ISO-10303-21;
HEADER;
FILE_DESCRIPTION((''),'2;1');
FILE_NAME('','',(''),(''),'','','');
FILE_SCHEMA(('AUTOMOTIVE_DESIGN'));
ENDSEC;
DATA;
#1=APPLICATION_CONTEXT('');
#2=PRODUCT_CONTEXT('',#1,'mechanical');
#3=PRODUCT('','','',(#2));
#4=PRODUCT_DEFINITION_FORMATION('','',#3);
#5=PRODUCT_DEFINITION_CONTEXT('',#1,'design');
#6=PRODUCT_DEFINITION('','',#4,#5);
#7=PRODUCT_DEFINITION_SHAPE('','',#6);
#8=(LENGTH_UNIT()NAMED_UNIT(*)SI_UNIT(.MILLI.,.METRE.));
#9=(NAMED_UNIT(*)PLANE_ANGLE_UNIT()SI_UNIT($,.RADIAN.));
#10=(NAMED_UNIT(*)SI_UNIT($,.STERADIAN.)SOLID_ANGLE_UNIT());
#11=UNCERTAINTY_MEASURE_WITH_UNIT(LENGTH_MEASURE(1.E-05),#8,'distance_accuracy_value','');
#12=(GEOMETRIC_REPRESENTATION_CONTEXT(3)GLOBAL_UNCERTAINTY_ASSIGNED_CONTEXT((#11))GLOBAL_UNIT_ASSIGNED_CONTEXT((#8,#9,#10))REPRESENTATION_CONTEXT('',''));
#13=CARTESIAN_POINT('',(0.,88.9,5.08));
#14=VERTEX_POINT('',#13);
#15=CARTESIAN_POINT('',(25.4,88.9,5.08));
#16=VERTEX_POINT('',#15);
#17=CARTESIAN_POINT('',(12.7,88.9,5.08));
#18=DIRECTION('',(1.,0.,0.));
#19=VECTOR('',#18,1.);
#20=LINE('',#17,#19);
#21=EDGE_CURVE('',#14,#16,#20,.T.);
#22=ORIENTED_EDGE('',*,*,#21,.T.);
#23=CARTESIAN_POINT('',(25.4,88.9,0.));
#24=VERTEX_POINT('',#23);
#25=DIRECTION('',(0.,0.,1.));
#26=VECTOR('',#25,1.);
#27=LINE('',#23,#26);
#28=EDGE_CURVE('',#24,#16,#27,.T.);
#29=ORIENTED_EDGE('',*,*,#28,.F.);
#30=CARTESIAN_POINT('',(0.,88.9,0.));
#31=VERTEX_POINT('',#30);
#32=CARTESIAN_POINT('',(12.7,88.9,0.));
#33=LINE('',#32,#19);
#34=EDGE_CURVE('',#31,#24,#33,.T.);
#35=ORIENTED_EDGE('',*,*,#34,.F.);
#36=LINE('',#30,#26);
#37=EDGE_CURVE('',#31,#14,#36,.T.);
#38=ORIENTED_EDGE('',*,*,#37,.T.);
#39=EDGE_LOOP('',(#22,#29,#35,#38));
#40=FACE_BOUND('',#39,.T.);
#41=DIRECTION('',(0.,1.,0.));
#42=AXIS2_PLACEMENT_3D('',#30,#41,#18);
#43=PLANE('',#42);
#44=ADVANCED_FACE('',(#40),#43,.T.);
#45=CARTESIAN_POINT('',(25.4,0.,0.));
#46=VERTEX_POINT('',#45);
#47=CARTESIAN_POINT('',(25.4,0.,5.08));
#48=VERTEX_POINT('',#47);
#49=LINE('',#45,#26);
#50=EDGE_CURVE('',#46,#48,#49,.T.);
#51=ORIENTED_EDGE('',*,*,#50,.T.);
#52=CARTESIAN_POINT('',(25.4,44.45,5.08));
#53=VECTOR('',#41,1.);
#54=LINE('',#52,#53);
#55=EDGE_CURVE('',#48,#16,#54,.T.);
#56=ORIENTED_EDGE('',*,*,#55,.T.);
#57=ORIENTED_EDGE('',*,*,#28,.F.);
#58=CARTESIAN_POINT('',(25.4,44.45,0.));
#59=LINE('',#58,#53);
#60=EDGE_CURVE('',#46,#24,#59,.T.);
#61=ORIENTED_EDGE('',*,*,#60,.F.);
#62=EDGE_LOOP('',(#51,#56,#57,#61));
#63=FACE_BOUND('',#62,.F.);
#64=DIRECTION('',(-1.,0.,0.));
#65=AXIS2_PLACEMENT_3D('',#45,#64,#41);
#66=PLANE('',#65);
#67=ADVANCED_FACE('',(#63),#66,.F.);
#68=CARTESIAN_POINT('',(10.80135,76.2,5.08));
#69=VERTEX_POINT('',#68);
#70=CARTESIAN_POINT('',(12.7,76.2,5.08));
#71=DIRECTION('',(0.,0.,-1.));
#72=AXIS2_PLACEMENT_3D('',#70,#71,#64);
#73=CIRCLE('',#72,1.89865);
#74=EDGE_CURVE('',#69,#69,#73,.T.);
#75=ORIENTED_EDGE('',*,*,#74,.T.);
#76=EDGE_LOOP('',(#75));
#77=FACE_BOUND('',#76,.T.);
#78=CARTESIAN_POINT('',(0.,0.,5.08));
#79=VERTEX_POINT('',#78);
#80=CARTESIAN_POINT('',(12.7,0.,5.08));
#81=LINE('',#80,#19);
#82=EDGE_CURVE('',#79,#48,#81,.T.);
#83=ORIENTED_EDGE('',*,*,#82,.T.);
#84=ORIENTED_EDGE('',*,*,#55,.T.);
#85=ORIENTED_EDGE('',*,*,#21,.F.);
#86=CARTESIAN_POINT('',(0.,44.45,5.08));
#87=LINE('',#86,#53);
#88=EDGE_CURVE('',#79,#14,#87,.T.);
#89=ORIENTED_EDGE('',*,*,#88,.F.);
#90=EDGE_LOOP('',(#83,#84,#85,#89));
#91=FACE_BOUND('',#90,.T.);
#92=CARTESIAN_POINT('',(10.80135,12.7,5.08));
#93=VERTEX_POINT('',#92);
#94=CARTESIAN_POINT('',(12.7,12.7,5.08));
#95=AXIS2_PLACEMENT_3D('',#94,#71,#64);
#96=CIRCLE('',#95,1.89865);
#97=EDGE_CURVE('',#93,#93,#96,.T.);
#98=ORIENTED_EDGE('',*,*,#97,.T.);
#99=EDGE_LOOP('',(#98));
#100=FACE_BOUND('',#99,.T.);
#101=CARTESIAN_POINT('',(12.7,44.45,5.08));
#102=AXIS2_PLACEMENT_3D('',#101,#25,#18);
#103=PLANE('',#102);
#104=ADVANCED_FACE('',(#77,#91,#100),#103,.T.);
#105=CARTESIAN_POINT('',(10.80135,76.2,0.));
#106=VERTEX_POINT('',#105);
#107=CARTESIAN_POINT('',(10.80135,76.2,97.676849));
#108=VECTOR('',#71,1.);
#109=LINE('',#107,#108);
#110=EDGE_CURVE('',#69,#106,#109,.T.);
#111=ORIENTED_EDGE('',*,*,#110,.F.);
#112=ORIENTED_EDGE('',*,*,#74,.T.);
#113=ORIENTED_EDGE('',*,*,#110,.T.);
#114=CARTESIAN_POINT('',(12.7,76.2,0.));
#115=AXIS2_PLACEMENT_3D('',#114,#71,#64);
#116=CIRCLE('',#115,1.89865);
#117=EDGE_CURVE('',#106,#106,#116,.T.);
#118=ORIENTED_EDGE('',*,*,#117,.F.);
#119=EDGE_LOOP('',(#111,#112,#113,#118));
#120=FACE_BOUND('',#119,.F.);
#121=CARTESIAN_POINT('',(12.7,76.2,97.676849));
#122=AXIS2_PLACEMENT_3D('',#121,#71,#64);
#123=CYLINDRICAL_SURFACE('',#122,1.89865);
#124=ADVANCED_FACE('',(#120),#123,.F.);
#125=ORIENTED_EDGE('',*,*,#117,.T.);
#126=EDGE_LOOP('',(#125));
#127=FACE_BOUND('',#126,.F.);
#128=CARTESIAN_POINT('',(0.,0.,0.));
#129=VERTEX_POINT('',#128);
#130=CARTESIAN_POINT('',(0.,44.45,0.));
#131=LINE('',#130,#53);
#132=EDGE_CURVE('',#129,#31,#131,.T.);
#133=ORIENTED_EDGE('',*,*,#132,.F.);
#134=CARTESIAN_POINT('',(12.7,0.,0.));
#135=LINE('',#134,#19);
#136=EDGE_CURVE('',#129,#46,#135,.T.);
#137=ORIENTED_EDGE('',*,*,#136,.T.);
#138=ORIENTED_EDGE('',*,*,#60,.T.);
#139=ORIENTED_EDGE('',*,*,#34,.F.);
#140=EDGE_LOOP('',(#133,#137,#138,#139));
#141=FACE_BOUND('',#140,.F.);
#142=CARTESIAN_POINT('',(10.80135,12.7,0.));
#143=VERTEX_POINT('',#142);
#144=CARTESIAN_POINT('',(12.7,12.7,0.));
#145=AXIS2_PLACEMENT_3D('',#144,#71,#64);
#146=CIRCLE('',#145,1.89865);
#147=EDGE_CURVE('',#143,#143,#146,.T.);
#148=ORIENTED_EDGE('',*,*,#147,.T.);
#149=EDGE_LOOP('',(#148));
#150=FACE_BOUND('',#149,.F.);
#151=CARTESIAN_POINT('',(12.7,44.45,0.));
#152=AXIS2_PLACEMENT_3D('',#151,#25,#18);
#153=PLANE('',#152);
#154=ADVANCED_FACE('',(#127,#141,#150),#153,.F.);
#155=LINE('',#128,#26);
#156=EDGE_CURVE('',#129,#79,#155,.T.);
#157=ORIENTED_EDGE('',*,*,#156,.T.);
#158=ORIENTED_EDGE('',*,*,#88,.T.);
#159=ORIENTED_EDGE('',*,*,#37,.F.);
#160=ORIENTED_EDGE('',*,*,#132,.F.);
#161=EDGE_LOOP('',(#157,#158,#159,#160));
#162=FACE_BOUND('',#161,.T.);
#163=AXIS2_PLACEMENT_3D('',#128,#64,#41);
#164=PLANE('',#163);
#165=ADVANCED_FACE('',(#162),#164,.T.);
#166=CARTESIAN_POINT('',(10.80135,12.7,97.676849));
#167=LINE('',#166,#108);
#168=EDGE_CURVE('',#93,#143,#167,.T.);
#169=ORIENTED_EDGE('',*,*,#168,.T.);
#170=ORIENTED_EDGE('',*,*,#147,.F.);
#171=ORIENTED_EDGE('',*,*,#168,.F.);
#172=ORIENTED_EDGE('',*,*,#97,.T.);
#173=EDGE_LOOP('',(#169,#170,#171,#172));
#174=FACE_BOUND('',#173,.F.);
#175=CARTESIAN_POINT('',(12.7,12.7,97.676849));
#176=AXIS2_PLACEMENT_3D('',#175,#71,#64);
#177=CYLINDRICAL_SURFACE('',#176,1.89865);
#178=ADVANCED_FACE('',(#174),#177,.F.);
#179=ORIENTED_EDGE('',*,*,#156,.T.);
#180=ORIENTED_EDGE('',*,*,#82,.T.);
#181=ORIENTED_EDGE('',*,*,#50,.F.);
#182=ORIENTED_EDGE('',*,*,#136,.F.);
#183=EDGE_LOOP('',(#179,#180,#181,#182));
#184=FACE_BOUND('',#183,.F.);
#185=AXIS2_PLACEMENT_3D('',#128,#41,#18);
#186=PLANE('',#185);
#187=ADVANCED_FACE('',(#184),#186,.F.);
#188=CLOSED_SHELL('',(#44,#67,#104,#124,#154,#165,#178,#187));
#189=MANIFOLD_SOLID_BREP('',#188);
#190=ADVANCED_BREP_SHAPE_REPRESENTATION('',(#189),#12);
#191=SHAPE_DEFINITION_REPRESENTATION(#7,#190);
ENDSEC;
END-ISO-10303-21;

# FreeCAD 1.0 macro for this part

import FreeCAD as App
import Part
import Sketcher
Q = App.Units.Quantity

doc = App.newDocument("Part")
params = doc.addObject("Spreadsheet::Sheet", "Params")
for row, (alias, value) in enumerate([
    ("sketch1_width", "1 in"),
    ("sketch1_height", "3.5 in"),
    ("pad1_length", "0.2 in"),
    ("hole_diameter", "0.1495 in"),
], start=1):
    params.set(f"A{row}", alias)
    params.set(f"B{row}", "=" + value)
    params.setAlias(f"B{row}", alias)

body = doc.addObject("PartDesign::Body", "Body")

# Sketch on XY plane
sketch1 = body.newObject("Sketcher::SketchObject", "Sketch")
sketch1.AttachmentSupport = (doc.getObject("XY_Plane"), [""])
sketch1.MapMode = "FlatFace"
sketch1.addGeometry([
    Part.LineSegment(App.Vector(0, 89, 0), App.Vector(0, 0, 0)),
    Part.LineSegment(App.Vector(0, 0, 0), App.Vector(25, 0, 0)),
    Part.LineSegment(App.Vector(25, 0, 0), App.Vector(25, 89, 0)),
    Part.LineSegment(App.Vector(25, 89, 0), App.Vector(0, 89, 0)),
], False)
sketch1.addConstraint([
    Sketcher.Constraint("Coincident", 0, 2, 1, 1),
    Sketcher.Constraint("Coincident", 1, 2, 2, 1),
    Sketcher.Constraint("Coincident", 2, 2, 3, 1),
    Sketcher.Constraint("Coincident", 3, 2, 0, 1),
    Sketcher.Constraint("Vertical", 0),
    Sketcher.Constraint("Horizontal", 1),
    Sketcher.Constraint("Vertical", 2),
    Sketcher.Constraint("Horizontal", 3),
    Sketcher.Constraint("Coincident", 0, 2, -1, 1),
    Sketcher.Constraint("DistanceX", 1, 1, 1, 2, Q("1 in")),
    Sketcher.Constraint("DistanceY", 0, 2, 0, 1, Q("3.5 in")),
])
sketch1.setExpression("Constraints[9]", "Params.sketch1_width")
sketch1.setExpression("Constraints[10]", "Params.sketch1_height")
pad1 = body.newObject("PartDesign::Pad", "Pad")
pad1.Profile = sketch1
pad1.setExpression("Length", "Params.pad1_length")

# Sketch on XY plane
sketch2 = body.newObject("Sketcher::SketchObject", "Sketch001")
sketch2.AttachmentSupport = (doc.getObject("XY_Plane"), [""])
sketch2.MapMode = "FlatFace"
sketch2.AttachmentOffset = App.Placement(App.Vector(0, 0, 0.2 * 25.4), App.Rotation())
sketch2.addGeometry([
    Part.Circle(App.Vector(12.7, 76.2, 0), App.Vector(0, 0, 1), 1.9),
    Part.Circle(App.Vector(12.7, 12.7, 0), App.Vector(0, 0, 1), 1.9),
], False)
sketch2.addConstraint([
    Sketcher.Constraint("Equal", 0, 1),
    Sketcher.Constraint("Vertical", 0, 3, 1, 3),
    Sketcher.Constraint("DistanceY", -1, 1, 0, 3, Q("3 in")),
    Sketcher.Constraint("Diameter", 0, Q("0.1495 in")),
    Sketcher.Constraint("DistanceX", -1, 1, 0, 3, Q("0.5 in")),
    Sketcher.Constraint("DistanceY", -1, 1, 1, 3, Q("0.5 in")),
])
doc.recompute()
hole = body.newObject("PartDesign::Hole", "Hole")
hole.Profile = sketch2
hole.ThreadType = "None"
hole.setExpression("Diameter", "Params.hole_diameter")
hole.DepthType = "ThroughAll"

doc.recompute()
